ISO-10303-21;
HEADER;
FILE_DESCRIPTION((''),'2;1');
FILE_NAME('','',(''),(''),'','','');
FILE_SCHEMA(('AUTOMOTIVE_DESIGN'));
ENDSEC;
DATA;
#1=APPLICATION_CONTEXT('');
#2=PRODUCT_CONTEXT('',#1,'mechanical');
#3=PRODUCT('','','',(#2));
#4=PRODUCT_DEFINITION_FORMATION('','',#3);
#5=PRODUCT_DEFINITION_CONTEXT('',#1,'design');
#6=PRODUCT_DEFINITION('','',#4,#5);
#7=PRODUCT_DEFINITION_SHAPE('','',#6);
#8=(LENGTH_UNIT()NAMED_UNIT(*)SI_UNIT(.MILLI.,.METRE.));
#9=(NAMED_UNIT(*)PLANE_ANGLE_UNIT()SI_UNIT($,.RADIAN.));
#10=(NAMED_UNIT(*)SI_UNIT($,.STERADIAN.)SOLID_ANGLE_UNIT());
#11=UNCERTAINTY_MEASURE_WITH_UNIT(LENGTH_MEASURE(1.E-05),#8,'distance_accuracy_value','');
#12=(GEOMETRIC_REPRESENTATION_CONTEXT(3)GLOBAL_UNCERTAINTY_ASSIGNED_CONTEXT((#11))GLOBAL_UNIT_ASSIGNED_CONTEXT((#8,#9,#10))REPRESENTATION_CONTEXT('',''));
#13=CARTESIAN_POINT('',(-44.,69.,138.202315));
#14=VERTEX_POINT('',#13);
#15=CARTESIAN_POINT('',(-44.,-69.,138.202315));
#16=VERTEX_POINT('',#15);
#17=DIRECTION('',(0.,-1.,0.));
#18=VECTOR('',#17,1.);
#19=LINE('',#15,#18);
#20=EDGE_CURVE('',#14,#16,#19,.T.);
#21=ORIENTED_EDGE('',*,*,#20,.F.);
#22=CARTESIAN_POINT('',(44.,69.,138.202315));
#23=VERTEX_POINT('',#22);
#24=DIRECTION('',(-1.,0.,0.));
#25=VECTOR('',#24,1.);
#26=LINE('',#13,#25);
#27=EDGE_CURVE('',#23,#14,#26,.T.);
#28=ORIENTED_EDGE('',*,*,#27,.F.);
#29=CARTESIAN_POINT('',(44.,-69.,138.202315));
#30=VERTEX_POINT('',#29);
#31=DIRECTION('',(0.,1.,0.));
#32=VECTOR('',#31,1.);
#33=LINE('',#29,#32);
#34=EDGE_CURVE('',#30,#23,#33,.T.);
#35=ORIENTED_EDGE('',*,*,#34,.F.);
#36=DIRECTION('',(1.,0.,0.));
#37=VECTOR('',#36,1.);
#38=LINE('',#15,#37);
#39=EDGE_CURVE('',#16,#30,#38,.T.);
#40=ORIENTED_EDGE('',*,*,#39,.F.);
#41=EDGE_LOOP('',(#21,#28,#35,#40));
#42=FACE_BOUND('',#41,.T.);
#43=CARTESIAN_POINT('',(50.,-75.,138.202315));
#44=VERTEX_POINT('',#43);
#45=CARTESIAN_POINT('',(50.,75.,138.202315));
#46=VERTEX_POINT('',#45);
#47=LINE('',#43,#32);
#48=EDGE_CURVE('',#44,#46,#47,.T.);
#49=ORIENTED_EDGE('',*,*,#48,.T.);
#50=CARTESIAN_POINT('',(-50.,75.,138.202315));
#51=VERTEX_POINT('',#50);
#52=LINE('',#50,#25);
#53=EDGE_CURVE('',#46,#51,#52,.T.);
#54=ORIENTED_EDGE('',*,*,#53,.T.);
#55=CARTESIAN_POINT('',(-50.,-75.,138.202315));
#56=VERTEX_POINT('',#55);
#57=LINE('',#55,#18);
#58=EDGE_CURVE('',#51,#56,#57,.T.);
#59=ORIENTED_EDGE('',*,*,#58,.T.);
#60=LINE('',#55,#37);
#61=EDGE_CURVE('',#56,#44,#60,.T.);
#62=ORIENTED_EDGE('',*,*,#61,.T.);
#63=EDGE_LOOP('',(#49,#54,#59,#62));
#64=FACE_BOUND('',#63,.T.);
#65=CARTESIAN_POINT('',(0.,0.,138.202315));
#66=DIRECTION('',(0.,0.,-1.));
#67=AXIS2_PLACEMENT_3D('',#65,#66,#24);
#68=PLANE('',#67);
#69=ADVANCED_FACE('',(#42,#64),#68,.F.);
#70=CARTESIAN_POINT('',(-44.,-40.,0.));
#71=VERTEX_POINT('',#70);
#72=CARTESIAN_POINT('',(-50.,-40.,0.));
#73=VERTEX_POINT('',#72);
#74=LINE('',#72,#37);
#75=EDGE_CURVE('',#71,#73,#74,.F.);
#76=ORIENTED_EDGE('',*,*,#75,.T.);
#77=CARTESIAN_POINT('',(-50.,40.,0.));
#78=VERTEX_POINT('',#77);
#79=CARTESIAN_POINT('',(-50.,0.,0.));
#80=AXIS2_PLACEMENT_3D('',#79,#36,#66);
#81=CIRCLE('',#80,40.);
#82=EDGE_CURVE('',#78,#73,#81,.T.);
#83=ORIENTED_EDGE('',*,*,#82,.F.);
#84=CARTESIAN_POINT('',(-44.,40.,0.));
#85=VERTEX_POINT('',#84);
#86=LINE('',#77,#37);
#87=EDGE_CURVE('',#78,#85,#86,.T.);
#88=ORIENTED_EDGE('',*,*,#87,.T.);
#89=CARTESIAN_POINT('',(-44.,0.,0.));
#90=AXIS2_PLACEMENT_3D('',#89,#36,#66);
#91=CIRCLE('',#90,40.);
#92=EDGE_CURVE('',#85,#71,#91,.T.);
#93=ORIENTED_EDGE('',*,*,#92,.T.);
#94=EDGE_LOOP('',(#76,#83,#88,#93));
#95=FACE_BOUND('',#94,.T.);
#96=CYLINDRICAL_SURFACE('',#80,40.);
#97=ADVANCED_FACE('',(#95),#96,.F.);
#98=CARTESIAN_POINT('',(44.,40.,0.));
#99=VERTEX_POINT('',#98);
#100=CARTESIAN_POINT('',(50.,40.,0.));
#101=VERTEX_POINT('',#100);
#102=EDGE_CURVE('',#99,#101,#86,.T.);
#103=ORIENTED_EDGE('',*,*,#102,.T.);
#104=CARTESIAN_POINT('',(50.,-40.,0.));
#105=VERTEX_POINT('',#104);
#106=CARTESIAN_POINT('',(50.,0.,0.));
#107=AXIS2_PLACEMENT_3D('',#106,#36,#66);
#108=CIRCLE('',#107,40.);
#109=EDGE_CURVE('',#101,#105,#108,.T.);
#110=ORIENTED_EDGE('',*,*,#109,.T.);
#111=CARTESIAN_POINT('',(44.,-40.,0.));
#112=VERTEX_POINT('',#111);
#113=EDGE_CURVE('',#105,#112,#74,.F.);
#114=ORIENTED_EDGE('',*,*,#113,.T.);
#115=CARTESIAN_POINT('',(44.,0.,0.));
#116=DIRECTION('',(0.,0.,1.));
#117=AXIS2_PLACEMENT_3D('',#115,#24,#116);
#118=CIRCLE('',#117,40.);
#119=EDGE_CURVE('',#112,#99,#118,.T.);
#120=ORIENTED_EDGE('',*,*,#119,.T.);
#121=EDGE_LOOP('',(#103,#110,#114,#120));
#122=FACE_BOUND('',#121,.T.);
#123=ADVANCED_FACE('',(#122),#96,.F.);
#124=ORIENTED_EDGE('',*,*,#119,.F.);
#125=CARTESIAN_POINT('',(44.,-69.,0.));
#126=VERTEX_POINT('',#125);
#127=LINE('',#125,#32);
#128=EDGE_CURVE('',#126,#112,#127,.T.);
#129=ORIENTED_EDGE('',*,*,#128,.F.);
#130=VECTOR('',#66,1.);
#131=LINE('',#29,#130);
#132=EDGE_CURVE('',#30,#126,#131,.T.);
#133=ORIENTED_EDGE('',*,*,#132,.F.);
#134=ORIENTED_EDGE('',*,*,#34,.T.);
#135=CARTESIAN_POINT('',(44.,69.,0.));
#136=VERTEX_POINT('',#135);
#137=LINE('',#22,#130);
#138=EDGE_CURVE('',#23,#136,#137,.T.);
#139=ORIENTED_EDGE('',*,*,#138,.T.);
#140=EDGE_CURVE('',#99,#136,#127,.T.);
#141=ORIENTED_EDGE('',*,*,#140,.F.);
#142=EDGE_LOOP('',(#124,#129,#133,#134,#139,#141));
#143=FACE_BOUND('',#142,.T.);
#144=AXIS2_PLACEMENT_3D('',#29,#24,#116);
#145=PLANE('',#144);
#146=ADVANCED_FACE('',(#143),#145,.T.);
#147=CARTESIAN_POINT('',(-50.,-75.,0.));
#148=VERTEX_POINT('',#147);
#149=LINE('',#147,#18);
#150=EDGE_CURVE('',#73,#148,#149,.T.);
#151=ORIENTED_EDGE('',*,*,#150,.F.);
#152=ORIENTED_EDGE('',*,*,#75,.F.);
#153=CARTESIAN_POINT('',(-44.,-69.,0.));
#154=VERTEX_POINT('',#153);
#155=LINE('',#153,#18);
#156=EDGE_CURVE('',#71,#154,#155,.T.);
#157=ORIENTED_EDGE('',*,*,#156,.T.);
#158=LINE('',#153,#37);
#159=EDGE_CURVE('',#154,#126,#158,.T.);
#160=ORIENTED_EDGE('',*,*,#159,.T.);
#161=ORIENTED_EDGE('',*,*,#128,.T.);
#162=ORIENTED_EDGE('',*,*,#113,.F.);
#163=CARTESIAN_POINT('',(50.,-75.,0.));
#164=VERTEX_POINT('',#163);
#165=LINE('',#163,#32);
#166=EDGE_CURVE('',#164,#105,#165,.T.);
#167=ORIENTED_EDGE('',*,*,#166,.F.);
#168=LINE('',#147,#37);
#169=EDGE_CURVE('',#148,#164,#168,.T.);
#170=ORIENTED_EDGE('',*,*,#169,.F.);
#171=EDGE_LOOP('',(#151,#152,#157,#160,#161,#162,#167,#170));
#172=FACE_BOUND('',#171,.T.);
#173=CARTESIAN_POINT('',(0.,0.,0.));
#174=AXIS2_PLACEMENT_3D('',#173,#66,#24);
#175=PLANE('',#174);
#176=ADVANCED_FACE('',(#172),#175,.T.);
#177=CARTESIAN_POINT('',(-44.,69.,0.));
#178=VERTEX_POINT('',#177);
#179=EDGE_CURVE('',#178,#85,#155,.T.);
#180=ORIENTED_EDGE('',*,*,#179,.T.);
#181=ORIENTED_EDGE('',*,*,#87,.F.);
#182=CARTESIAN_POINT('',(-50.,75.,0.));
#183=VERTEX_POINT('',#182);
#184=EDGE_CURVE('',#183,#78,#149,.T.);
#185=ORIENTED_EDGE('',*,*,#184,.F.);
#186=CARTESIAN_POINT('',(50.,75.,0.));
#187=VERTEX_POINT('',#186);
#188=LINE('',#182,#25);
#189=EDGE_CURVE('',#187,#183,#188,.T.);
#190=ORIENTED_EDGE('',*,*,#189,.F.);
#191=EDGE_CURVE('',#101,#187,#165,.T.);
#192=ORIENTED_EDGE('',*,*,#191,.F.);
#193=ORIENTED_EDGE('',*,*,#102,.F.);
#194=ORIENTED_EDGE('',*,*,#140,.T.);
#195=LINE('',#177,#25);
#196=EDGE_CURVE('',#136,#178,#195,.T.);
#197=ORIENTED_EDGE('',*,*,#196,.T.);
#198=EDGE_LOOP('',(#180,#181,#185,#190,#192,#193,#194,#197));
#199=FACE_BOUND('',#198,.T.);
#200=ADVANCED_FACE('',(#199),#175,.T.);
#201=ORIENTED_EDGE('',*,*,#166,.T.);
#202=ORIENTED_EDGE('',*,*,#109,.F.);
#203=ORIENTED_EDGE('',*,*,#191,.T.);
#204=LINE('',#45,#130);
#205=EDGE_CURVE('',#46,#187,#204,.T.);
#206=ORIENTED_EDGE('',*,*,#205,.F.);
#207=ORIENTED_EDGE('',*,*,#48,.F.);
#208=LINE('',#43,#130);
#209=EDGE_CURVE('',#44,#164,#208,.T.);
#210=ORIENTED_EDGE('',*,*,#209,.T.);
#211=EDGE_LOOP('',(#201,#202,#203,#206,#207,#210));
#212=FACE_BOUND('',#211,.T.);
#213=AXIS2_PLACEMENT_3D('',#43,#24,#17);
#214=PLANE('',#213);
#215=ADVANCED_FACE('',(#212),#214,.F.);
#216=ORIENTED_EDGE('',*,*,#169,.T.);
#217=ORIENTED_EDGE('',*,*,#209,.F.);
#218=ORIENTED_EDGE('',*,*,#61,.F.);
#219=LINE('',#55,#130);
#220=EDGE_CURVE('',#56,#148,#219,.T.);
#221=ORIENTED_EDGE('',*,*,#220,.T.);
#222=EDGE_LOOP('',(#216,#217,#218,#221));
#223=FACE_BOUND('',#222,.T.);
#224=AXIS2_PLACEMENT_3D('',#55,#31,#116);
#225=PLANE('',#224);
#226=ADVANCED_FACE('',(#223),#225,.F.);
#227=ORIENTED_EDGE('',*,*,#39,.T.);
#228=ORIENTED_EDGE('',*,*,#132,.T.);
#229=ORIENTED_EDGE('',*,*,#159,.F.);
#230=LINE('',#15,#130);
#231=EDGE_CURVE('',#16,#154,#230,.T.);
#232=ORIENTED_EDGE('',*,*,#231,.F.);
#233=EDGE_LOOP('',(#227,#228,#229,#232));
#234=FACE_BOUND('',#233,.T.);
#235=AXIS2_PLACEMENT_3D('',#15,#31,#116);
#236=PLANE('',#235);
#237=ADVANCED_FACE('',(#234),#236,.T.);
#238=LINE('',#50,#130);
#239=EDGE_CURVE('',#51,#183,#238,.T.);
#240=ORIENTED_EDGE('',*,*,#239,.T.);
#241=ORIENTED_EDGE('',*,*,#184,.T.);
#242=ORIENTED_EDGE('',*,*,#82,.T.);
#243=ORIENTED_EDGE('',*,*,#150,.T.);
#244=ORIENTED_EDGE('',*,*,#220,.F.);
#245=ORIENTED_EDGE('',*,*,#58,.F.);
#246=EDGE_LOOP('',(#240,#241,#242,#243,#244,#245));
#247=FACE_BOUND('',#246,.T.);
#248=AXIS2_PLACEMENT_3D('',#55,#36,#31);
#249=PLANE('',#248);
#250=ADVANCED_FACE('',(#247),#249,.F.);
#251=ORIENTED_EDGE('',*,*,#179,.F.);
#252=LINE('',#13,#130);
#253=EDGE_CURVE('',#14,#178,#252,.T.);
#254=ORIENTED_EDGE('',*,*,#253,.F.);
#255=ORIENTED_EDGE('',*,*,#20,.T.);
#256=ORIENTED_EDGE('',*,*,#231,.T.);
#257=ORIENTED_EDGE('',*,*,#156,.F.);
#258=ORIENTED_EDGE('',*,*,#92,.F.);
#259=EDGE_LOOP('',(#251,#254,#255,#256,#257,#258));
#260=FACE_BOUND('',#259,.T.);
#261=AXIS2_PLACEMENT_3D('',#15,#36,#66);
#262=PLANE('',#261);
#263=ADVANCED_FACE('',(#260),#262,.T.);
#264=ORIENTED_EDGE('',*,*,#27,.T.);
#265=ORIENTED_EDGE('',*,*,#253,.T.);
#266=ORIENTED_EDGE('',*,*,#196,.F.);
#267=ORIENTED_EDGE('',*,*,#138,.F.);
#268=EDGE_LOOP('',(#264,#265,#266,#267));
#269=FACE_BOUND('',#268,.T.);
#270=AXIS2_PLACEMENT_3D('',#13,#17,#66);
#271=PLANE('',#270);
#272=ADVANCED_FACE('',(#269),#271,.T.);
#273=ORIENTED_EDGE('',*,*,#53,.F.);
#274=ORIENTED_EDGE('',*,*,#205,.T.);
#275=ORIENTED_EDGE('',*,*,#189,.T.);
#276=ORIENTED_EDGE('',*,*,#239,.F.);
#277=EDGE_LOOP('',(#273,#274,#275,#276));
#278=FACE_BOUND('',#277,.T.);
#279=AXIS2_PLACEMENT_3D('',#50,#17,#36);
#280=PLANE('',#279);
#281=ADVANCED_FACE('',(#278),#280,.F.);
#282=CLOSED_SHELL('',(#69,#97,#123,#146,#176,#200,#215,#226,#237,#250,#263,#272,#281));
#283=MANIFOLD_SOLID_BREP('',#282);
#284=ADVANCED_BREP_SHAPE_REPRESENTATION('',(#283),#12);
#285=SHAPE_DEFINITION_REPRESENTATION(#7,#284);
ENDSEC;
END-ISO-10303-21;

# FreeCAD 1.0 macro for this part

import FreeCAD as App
import Part
import Sketcher


def add_polygon(sketch, points):
    """Adds a closed chain of lines whose ends are joined by coincident constraints."""
    first, n = sketch.GeometryCount, len(points)
    for a, b in zip(points, points[1:] + points[:1]):
        sketch.addGeometry(Part.LineSegment(App.Vector(*a, 0), App.Vector(*b, 0)), False)
    for i in range(n):
        sketch.addConstraint(Sketcher.Constraint("Coincident", first + i, 2, first + (i + 1) % n, 1))

doc = App.newDocument("Part")
params = doc.addObject("Spreadsheet::Sheet", "Params")
for row, (alias, value) in enumerate([
    ("sketch1_width", "100 mm"),
    ("sketch1_width2", "88 mm"),
    ("sketch1_height", "150 mm"),
    ("sketch1_height2", "138 mm"),
    ("pad1_length", "138.202315 mm"),
    ("sketch2_diameter", "80 mm"),
], start=1):
    params.set(f"A{row}", alias)
    params.set(f"B{row}", "=" + value)
    params.setAlias(f"B{row}", alias)

body = doc.addObject("PartDesign::Body", "Body")

# Sketch on XY plane
sketch1 = body.newObject("Sketcher::SketchObject", "Sketch")
sketch1.AttachmentSupport = (doc.getObject("XY_Plane"), [""])
sketch1.MapMode = "FlatFace"
add_polygon(sketch1, [(-50, 75), (-50, -75), (50, -75), (50, 75)])  # lines 0-3
add_polygon(sketch1, [(44, -69), (-44, -69), (-44, 69), (44, 69)])  # lines 4-7
sketch1.addConstraint([
    Sketcher.Constraint("Vertical", 0),
    Sketcher.Constraint("Horizontal", 1),
    Sketcher.Constraint("Vertical", 2),
    Sketcher.Constraint("Horizontal", 3),
    Sketcher.Constraint("Horizontal", 4),
    Sketcher.Constraint("Vertical", 5),
    Sketcher.Constraint("Horizontal", 6),
    Sketcher.Constraint("Vertical", 7),
    Sketcher.Constraint("Symmetric", 0, 2, 2, 2, -1, 1),
    Sketcher.Constraint("Symmetric", 4, 2, 6, 2, -1, 1),
    Sketcher.Constraint("DistanceX", 1, 1, 1, 2, 100.0),
    Sketcher.Constraint("DistanceX", 4, 2, 4, 1, 88.0),
    Sketcher.Constraint("DistanceY", 0, 2, 0, 1, 150.0),
    Sketcher.Constraint("DistanceY", 5, 1, 5, 2, 138.0),
])
sketch1.setExpression("Constraints[18]", "Params.sketch1_width")
sketch1.setExpression("Constraints[19]", "Params.sketch1_width2")
sketch1.setExpression("Constraints[20]", "Params.sketch1_height")
sketch1.setExpression("Constraints[21]", "Params.sketch1_height2")
pad1 = body.newObject("PartDesign::Pad", "Pad")
pad1.Profile = sketch1
pad1.setExpression("Length", "Params.pad1_length")

# Sketch on YZ plane
sketch2 = body.newObject("Sketcher::SketchObject", "Sketch001")
sketch2.AttachmentSupport = (doc.getObject("YZ_Plane"), [""])
sketch2.MapMode = "FlatFace"
sketch2.addGeometry(Part.Circle(App.Vector(0, 0, 0), App.Vector(0, 0, 1), 40), False)
sketch2.addConstraint([
    Sketcher.Constraint("Coincident", 0, 3, -1, 1),
    Sketcher.Constraint("Diameter", 0, 80.0),
])
sketch2.setExpression("Constraints[1]", "Params.sketch2_diameter")
pocket1 = body.newObject("PartDesign::Pocket", "Pocket")
pocket1.Profile = sketch2
pocket1.Type = "ThroughAll"
pocket1.Midplane = True

doc.recompute()
